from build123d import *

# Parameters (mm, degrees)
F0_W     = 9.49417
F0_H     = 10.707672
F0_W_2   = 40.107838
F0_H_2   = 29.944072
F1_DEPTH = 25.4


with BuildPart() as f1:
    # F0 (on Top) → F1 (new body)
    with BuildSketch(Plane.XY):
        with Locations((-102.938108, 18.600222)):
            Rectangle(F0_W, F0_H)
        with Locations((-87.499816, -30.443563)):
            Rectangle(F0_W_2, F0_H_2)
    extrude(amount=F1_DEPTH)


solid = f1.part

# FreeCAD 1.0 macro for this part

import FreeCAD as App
import Part
import Sketcher

V = App.Vector
Q = App.Units.Quantity

doc = App.newDocument("Part")
body = doc.addObject("PartDesign::Body", "Body")
body.AllowCompound = True

# Sketch on XY plane
sketch1 = body.newObject("Sketcher::SketchObject", "Sketch")
sketch1.AttachmentSupport = (doc.getObject("XY_Plane"), [""])
sketch1.MapMode = "FlatFace"
sketch1.addGeometry([
    Part.LineSegment(V(-108, 24, 0), V(-108, 13, 0)),  # 0
    Part.LineSegment(V(-108, 13, 0), V(-98, 13, 0)),  # 1
    Part.LineSegment(V(-98, 13, 0), V(-98, 24, 0)),  # 2
    Part.LineSegment(V(-98, 24, 0), V(-108, 24, 0)),  # 3
    Part.LineSegment(V(-108, -15, 0), V(-108, -45, 0)),  # 4
    Part.LineSegment(V(-108, -45, 0), V(-67, -45, 0)),  # 5
    Part.LineSegment(V(-67, -45, 0), V(-67, -15, 0)),  # 6
    Part.LineSegment(V(-67, -15, 0), V(-108, -15, 0)),  # 7
], False)
sketch1.addConstraint([
    Sketcher.Constraint("Coincident", 0, 2, 1, 1),
    Sketcher.Constraint("Coincident", 1, 2, 2, 1),
    Sketcher.Constraint("Coincident", 2, 2, 3, 1),
    Sketcher.Constraint("Coincident", 3, 2, 0, 1),
    Sketcher.Constraint("Coincident", 4, 2, 5, 1),
    Sketcher.Constraint("Coincident", 5, 2, 6, 1),
    Sketcher.Constraint("Coincident", 6, 2, 7, 1),
    Sketcher.Constraint("Coincident", 7, 2, 4, 1),
    Sketcher.Constraint("Vertical", 0),
    Sketcher.Constraint("Horizontal", 1),
    Sketcher.Constraint("Vertical", 2),
    Sketcher.Constraint("Horizontal", 3),
    Sketcher.Constraint("Vertical", 4),
    Sketcher.Constraint("Horizontal", 5),
    Sketcher.Constraint("Vertical", 6),
    Sketcher.Constraint("Horizontal", 7),
    Sketcher.Constraint("DistanceX", 1, 1, 1, 2, 9.49417),
    Sketcher.Constraint("DistanceY", 4, 2, 4, 1, 29.944072),
    Sketcher.Constraint("DistanceY", 4, 2, -1, 1, 45.415599),
    Sketcher.Constraint("DistanceX", 5, 1, 5, 2, 40.107838),
    Sketcher.Constraint("DistanceY", 0, 2, 0, 1, 10.707672),
    Sketcher.Constraint("DistanceY", -1, 1, 2, 2, 23.954058),
    Sketcher.Constraint("DistanceX", 0, 2, -1, 1, 107.685193),
    Sketcher.Constraint("DistanceX", 4, 2, -1, 1, 107.553735),
])
pad1 = body.newObject("PartDesign::Pad", "Pad")
pad1.Profile = sketch1
pad1.Length = Q("1 in")

doc.recompute()
